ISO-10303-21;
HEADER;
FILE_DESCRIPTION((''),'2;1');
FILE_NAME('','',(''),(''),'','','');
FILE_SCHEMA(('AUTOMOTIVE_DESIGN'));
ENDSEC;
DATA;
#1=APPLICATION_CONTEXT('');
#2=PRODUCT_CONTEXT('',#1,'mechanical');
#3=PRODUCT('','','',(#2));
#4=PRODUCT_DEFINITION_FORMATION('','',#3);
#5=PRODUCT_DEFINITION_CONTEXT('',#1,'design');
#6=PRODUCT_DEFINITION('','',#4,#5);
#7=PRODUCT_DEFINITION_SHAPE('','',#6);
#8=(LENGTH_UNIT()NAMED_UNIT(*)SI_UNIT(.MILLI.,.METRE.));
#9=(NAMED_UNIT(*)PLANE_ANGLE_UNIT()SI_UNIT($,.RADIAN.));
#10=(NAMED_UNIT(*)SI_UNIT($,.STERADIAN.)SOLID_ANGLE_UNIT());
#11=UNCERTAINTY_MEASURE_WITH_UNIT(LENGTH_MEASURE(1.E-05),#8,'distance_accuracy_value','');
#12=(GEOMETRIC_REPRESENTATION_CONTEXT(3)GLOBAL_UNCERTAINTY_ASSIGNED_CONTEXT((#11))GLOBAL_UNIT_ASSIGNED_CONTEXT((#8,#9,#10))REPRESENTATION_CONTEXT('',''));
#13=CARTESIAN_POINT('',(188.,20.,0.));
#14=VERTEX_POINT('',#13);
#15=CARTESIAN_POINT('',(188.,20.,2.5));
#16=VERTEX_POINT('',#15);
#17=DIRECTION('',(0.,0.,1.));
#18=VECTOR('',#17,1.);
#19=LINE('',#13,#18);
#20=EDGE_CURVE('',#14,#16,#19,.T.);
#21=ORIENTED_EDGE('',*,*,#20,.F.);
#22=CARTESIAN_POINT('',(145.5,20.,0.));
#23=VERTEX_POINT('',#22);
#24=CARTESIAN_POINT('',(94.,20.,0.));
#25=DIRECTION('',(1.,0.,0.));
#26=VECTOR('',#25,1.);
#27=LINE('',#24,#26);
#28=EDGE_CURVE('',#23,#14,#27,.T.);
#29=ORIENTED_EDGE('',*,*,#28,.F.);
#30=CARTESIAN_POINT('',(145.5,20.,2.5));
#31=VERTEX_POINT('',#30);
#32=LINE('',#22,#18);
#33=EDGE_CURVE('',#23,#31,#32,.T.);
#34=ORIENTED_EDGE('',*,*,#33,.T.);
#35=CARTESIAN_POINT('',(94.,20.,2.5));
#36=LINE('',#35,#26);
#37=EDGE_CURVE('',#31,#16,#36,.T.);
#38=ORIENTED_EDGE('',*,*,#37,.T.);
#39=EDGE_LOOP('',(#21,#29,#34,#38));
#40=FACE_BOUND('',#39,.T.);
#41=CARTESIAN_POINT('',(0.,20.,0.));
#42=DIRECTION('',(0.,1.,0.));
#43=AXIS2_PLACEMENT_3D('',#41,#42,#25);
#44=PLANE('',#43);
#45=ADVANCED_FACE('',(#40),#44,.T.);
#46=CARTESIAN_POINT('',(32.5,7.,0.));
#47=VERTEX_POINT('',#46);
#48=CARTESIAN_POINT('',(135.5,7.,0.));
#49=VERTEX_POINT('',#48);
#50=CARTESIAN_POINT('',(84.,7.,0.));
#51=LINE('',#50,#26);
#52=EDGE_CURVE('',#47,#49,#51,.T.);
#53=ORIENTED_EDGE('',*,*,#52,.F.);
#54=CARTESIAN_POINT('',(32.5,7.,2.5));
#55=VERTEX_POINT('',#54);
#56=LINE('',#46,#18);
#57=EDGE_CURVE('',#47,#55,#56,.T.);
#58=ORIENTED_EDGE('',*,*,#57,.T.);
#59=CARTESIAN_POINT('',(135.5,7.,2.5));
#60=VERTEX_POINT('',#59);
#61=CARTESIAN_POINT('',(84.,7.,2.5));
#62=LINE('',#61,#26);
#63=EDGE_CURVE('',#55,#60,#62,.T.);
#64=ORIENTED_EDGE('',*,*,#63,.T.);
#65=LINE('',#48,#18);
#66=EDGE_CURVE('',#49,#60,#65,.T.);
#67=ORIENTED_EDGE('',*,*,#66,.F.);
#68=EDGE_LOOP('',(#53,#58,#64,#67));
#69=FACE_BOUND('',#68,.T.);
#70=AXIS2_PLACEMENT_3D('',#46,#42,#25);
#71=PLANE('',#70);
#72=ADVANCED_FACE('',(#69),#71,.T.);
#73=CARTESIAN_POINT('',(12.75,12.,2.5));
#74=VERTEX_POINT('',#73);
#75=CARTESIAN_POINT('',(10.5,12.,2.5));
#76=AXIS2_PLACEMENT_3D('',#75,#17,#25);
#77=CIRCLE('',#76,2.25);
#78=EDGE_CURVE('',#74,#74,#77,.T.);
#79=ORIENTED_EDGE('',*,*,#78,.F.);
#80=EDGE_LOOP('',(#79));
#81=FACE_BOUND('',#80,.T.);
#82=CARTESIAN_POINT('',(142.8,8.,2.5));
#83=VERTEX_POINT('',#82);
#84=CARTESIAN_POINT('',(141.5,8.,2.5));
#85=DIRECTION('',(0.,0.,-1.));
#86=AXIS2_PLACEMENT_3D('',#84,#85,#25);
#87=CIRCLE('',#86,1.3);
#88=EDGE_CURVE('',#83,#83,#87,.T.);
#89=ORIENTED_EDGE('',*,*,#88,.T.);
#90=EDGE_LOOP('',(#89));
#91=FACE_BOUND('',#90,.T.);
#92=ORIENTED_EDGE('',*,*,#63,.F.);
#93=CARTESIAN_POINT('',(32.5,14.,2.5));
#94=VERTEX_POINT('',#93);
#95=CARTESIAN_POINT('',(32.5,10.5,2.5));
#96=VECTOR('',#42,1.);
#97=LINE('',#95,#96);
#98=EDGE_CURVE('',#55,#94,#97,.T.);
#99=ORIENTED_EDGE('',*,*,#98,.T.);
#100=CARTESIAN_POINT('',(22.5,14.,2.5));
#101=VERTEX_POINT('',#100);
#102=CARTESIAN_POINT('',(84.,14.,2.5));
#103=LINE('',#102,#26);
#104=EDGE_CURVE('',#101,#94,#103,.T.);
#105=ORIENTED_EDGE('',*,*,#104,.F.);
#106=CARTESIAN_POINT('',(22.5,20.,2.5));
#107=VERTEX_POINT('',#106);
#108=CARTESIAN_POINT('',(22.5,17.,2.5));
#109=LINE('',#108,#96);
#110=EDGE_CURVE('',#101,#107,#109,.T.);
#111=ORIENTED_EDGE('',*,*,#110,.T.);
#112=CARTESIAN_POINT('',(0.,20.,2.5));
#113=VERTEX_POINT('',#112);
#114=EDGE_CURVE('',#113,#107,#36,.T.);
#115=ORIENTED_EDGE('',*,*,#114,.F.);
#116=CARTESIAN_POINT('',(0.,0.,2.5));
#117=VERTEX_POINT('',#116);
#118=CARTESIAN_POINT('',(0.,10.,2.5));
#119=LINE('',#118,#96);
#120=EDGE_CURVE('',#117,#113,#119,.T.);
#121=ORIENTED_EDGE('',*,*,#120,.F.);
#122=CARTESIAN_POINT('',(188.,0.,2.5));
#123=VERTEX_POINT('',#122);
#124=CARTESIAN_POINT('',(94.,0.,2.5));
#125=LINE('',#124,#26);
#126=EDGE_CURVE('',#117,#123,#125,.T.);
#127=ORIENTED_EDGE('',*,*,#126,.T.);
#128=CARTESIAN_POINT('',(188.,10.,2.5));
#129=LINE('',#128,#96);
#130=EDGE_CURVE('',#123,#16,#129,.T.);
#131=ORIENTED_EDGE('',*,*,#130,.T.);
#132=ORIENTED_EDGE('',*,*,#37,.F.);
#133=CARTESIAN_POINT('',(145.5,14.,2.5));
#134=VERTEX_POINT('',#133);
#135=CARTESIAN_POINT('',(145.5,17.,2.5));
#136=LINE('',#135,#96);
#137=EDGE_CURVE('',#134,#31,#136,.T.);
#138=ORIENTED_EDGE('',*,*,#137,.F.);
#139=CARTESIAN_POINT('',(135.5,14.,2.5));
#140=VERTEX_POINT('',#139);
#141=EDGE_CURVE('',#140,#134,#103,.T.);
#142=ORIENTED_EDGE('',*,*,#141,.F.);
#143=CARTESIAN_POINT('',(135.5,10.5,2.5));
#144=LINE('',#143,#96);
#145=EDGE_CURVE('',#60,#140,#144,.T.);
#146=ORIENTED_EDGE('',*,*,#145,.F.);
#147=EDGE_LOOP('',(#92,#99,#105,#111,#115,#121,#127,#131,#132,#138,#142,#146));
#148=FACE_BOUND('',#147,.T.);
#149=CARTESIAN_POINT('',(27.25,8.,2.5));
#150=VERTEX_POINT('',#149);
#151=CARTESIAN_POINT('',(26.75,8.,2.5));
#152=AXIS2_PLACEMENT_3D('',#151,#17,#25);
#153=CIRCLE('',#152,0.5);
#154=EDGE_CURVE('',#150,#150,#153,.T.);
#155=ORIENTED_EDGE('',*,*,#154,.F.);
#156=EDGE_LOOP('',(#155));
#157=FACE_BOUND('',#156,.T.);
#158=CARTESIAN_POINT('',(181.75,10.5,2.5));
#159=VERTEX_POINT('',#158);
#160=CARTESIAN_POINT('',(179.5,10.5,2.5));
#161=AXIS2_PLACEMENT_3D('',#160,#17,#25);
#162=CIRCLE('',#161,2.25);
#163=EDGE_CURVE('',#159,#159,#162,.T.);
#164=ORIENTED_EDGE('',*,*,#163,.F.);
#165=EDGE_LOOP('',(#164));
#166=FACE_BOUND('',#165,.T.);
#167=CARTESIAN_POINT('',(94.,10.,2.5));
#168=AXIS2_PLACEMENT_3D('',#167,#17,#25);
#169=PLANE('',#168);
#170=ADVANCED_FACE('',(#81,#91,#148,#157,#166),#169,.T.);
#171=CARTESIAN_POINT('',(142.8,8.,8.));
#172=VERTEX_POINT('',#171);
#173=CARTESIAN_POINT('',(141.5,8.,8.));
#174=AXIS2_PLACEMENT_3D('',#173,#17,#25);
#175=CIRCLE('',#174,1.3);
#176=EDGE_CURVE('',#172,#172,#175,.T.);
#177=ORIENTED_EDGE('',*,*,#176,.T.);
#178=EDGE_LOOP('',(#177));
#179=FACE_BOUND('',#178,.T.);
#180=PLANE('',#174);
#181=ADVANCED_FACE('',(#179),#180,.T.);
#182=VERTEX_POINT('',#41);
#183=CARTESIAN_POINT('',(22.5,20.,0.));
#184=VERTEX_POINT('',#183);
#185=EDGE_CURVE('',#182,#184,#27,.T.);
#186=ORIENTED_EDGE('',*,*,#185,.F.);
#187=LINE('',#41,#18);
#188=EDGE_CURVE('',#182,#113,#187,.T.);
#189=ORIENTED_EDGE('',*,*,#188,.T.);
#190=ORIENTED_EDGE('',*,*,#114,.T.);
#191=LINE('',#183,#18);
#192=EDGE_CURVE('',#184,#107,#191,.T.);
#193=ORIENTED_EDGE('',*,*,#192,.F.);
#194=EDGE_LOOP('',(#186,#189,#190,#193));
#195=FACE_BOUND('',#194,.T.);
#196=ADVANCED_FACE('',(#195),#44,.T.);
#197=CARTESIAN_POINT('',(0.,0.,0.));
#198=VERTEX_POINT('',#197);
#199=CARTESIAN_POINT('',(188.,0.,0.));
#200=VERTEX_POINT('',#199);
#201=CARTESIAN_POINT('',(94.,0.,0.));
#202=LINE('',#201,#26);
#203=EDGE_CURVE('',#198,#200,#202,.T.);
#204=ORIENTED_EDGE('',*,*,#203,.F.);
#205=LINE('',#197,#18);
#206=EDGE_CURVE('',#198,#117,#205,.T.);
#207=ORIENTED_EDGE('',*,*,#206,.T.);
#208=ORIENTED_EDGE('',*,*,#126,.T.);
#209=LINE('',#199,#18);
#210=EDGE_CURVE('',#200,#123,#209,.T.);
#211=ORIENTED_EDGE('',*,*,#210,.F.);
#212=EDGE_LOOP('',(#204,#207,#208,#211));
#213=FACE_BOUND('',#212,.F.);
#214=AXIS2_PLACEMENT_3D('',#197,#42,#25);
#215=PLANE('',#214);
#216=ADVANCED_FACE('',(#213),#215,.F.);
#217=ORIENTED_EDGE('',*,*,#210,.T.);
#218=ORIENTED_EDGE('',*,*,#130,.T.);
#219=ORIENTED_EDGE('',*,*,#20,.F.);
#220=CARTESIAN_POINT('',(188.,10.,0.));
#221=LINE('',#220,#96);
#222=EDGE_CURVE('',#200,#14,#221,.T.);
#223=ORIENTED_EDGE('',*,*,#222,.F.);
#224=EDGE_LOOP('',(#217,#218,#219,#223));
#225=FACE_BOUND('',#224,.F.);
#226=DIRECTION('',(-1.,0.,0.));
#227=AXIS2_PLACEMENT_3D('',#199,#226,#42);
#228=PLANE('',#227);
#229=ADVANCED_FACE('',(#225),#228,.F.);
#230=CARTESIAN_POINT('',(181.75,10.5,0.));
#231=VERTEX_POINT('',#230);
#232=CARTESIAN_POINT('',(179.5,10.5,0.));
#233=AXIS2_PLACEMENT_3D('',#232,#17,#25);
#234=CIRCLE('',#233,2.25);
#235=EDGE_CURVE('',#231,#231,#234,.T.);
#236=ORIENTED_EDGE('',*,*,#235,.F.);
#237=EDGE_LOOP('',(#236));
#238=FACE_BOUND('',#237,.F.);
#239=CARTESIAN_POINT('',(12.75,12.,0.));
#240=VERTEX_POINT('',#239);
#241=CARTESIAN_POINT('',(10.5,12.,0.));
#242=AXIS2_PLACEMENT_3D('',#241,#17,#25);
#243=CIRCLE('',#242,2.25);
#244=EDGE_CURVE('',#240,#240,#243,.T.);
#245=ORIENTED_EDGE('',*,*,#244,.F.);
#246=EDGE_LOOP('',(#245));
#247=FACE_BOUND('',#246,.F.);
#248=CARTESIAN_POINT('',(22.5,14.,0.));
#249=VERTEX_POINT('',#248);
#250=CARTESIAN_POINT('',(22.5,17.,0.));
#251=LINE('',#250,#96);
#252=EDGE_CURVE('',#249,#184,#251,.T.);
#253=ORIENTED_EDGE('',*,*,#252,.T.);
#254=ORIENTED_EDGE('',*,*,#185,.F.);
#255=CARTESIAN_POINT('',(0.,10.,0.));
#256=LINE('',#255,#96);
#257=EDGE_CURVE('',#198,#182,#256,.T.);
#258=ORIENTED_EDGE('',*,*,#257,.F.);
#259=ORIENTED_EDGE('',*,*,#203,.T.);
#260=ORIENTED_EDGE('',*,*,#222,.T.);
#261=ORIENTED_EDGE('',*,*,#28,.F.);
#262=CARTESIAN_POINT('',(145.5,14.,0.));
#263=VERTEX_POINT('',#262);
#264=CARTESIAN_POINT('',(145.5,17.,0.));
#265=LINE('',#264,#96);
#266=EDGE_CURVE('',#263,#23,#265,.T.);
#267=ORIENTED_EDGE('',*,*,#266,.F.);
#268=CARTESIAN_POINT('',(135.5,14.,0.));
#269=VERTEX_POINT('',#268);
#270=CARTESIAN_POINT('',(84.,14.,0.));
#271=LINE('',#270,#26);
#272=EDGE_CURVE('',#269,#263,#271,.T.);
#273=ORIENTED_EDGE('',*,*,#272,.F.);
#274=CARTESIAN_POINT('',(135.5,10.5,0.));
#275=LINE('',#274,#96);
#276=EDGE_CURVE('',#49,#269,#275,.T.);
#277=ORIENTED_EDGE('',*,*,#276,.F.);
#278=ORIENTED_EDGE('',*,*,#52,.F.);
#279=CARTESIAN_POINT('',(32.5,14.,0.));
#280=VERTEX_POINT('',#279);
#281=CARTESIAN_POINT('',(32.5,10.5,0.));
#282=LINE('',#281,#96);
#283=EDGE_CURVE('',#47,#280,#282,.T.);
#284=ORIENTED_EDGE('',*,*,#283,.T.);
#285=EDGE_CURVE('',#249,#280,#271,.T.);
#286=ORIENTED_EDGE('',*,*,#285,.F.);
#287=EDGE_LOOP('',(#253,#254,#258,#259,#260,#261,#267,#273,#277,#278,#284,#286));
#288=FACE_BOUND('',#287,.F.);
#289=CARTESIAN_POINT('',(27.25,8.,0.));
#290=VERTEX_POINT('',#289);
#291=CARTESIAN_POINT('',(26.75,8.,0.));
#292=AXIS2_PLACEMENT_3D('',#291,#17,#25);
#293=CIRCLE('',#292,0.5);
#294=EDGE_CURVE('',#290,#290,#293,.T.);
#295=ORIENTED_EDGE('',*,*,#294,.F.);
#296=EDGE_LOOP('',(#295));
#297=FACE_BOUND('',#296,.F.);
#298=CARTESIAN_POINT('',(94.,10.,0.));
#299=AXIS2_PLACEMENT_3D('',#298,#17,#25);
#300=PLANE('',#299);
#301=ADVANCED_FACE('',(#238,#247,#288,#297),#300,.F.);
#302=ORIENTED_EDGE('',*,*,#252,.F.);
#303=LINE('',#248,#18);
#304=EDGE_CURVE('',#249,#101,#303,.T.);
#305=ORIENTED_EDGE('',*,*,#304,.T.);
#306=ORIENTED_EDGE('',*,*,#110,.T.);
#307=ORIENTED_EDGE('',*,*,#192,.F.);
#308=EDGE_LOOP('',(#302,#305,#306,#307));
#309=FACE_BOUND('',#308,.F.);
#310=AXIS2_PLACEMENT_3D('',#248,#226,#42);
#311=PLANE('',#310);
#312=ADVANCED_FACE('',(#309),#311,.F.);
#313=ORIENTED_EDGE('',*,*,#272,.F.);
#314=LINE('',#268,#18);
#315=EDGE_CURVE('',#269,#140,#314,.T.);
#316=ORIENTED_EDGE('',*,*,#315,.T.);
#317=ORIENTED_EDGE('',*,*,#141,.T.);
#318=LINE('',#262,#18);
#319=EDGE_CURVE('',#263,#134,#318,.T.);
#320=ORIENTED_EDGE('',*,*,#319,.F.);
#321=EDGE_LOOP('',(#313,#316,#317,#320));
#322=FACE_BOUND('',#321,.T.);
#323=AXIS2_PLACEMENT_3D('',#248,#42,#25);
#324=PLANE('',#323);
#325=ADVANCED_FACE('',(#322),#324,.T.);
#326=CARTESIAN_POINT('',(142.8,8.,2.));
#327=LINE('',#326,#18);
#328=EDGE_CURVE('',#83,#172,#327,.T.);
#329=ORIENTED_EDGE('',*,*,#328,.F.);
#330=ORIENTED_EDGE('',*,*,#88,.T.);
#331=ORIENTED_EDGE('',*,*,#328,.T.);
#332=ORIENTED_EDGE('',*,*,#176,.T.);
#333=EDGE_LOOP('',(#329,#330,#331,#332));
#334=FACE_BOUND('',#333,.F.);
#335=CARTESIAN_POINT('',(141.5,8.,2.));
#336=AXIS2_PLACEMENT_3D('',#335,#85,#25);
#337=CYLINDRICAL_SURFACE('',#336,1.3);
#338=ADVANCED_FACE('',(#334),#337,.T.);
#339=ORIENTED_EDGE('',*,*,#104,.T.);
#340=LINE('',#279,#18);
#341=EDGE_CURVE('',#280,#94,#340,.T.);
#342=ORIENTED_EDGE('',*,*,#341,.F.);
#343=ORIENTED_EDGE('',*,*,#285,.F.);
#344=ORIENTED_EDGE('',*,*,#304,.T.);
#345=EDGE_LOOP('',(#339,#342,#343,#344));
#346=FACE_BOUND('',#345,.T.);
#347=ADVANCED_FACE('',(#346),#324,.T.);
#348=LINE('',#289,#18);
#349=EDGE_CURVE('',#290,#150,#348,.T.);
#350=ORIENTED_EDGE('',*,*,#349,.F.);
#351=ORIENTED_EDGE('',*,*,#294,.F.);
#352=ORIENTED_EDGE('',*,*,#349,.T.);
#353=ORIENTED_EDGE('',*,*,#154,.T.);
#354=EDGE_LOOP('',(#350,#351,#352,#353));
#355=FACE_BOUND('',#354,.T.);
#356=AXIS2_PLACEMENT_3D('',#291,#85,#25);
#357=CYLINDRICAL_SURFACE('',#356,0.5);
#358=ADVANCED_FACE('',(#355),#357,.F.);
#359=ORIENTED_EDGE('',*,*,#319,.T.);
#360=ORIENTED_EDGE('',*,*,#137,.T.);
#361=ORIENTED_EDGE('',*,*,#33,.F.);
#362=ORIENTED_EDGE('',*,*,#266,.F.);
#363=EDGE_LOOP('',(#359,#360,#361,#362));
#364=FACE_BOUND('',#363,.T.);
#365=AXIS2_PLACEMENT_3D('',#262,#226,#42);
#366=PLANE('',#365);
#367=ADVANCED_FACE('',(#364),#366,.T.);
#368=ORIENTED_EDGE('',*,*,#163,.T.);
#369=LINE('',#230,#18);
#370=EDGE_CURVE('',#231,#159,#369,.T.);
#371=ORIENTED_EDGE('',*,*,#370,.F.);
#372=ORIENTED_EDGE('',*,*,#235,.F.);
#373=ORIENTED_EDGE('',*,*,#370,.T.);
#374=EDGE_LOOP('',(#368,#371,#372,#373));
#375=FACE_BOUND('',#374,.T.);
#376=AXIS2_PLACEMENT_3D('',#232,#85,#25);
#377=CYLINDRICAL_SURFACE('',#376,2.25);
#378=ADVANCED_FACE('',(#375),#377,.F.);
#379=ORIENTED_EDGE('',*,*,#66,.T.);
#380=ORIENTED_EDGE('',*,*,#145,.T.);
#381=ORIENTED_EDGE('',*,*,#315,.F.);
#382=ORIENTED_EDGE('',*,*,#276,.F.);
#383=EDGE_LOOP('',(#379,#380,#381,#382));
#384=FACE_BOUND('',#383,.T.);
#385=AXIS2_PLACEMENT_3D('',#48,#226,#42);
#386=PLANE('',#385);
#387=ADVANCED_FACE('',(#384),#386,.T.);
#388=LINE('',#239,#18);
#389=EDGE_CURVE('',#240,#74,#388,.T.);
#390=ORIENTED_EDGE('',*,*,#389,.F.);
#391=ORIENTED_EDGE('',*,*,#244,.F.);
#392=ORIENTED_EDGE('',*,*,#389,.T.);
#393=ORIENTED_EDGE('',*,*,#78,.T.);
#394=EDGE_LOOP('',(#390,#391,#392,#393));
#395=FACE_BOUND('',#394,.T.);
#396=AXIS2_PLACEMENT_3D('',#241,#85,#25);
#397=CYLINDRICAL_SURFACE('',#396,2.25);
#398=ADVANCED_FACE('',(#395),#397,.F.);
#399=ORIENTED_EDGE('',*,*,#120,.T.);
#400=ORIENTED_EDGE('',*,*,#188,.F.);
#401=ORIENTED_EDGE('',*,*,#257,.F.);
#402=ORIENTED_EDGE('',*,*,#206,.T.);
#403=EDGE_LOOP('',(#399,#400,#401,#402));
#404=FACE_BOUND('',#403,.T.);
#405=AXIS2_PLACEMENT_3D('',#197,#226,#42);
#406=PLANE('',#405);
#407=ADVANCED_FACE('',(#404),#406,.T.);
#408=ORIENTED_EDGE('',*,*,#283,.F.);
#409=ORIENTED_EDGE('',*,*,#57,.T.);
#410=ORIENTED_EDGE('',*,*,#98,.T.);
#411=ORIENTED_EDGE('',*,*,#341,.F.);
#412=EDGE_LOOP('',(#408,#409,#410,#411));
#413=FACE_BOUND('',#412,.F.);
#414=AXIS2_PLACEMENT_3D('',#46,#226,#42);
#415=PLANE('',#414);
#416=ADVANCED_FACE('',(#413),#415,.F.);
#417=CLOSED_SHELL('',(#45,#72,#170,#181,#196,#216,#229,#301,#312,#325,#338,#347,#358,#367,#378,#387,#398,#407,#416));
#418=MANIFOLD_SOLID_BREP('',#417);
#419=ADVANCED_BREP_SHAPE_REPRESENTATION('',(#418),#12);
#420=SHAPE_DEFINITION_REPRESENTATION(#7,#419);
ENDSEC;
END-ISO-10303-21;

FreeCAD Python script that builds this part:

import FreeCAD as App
import Part
import Sketcher
from FreeCAD import Vector
Q = App.Units.Quantity


def add_polygon(sketch, points):
    """Adds a closed chain of lines whose ends are joined by coincident constraints."""
    first, n = sketch.GeometryCount, len(points)
    for a, b in zip(points, points[1:] + points[:1]):
        sketch.addGeometry(Part.LineSegment(App.Vector(*a, 0), App.Vector(*b, 0)), False)
    for i in range(n):
        sketch.addConstraint(Sketcher.Constraint("Coincident", first + i, 2, first + (i + 1) % n, 1))

doc = App.newDocument("Part")
params = doc.addObject("Spreadsheet::Sheet", "Params")
for row, (alias, value) in enumerate([
    ("sketch1_width", "188 mm"),
    ("sketch1_height", "20 mm"),
    ("pad1_length", "2.5 mm"),
    ("sketch2_diameter", "4.5 mm"),
    ("pocket1_length", "2.5 mm"),
    ("sketch3_diameter", "4.5 mm"),
    ("pocket2_length", "2.5 mm"),
    ("sketch4_width", "123 mm"),
    ("sketch4_height", "6 mm"),
    ("pocket3_length", "2.5 mm"),
    ("sketch5_width", "103 mm"),
    ("sketch5_height", "7 mm"),
    ("pocket4_length", "2.5 mm"),
    ("sketch6_diameter", "2.6 mm"),
    ("pad2_length", "6 mm"),
    ("sketch7_diameter", "1 mm"),
    ("pocket5_length", "2.5 mm"),
], start=1):
    params.set(f"A{row}", alias)
    params.set(f"B{row}", "=" + value)
    params.setAlias(f"B{row}", alias)

body = doc.addObject("PartDesign::Body", "Body")

sketch1 = body.newObject("Sketcher::SketchObject", "Sketch")
sketch1.AttachmentSupport = (doc.getObject("XY_Plane"), [""])
sketch1.MapMode = "FlatFace"
add_polygon(sketch1, [(0, 20), (0, 0), (188, 0), (188, 20)])
sketch1.addConstraint([
    Sketcher.Constraint("Vertical", 0),
    Sketcher.Constraint("Horizontal", 1),
    Sketcher.Constraint("Vertical", 2),
    Sketcher.Constraint("Horizontal", 3),
    Sketcher.Constraint("Coincident", 0, 2, -1, 1),
    Sketcher.Constraint("DistanceX", 1, 1, 1, 2, Q("188 mm")),
    Sketcher.Constraint("DistanceY", 0, 2, 0, 1, Q("20 mm")),
])
sketch1.setExpression("Constraints[9]", "Params.sketch1_width")
sketch1.setExpression("Constraints[10]", "Params.sketch1_height")
pad1 = body.newObject("PartDesign::Pad", "Pad")
pad1.Profile = sketch1
pad1.setExpression("Length", "Params.pad1_length")

sketch2 = body.newObject("Sketcher::SketchObject", "Sketch001")
sketch2.AttachmentSupport = (doc.getObject("XY_Plane"), [""])
sketch2.MapMode = "FlatFace"
sketch2.addGeometry(Part.Circle(Vector(10.5, 12, 0), Vector(0, 0, 1), 2.2), False)
sketch2.addConstraint([
    Sketcher.Constraint("Diameter", 0, Q("4.5 mm")),
    Sketcher.Constraint("DistanceY", -1, 1, 0, 3, Q("12 mm")),
    Sketcher.Constraint("DistanceX", -1, 1, 0, 3, Q("10.5 mm")),
])
sketch2.setExpression("Constraints[0]", "Params.sketch2_diameter")
pocket1 = body.newObject("PartDesign::Pocket", "Pocket")
pocket1.Profile = sketch2
pocket1.setExpression("Length", "Params.pocket1_length")
pocket1.Reversed = True

sketch3 = body.newObject("Sketcher::SketchObject", "Sketch002")
sketch3.AttachmentSupport = (doc.getObject("XY_Plane"), [""])
sketch3.MapMode = "FlatFace"
sketch3.addGeometry(Part.Circle(Vector(179.5, 10.5, 0), Vector(0, 0, 1), 2.2), False)
sketch3.addConstraint([
    Sketcher.Constraint("Diameter", 0, Q("4.5 mm")),
    Sketcher.Constraint("DistanceX", -1, 1, 0, 3, Q("179.5 mm")),
    Sketcher.Constraint("DistanceY", -1, 1, 0, 3, Q("10.5 mm")),
])
sketch3.setExpression("Constraints[0]", "Params.sketch3_diameter")
pocket2 = body.newObject("PartDesign::Pocket", "Pocket001")
pocket2.Profile = sketch3
pocket2.setExpression("Length", "Params.pocket2_length")
pocket2.Reversed = True

sketch4 = body.newObject("Sketcher::SketchObject", "Sketch003")
sketch4.AttachmentSupport = (doc.getObject("XY_Plane"), [""])
sketch4.MapMode = "FlatFace"
add_polygon(sketch4, [(22, 20), (22, 14), (146, 14), (146, 20)])
sketch4.addConstraint([
    Sketcher.Constraint("Vertical", 0),
    Sketcher.Constraint("Horizontal", 1),
    Sketcher.Constraint("Vertical", 2),
    Sketcher.Constraint("Horizontal", 3),
    Sketcher.Constraint("DistanceX", 1, 1, 1, 2, Q("123 mm")),
    Sketcher.Constraint("DistanceY", 0, 2, 0, 1, Q("6 mm")),
    Sketcher.Constraint("DistanceY", -1, 1, 0, 2, Q("14 mm")),
    Sketcher.Constraint("DistanceX", -1, 1, 0, 2, Q("22.5 mm")),
])
sketch4.setExpression("Constraints[8]", "Params.sketch4_width")
sketch4.setExpression("Constraints[9]", "Params.sketch4_height")
pocket3 = body.newObject("PartDesign::Pocket", "Pocket002")
pocket3.Profile = sketch4
pocket3.setExpression("Length", "Params.pocket3_length")
pocket3.Reversed = True

sketch5 = body.newObject("Sketcher::SketchObject", "Sketch004")
sketch5.AttachmentSupport = (doc.getObject("XY_Plane"), [""])
sketch5.MapMode = "FlatFace"
add_polygon(sketch5, [(32, 14), (32, 7), (136, 7), (136, 14)])
sketch5.addConstraint([
    Sketcher.Constraint("Vertical", 0),
    Sketcher.Constraint("Horizontal", 1),
    Sketcher.Constraint("Vertical", 2),
    Sketcher.Constraint("Horizontal", 3),
    Sketcher.Constraint("DistanceX", 1, 1, 1, 2, Q("103 mm")),
    Sketcher.Constraint("DistanceY", 0, 2, 0, 1, Q("7 mm")),
    Sketcher.Constraint("DistanceY", -1, 1, 0, 2, Q("7 mm")),
    Sketcher.Constraint("DistanceX", -1, 1, 0, 2, Q("32.5 mm")),
])
sketch5.setExpression("Constraints[8]", "Params.sketch5_width")
sketch5.setExpression("Constraints[9]", "Params.sketch5_height")
pocket4 = body.newObject("PartDesign::Pocket", "Pocket003")
pocket4.Profile = sketch5
pocket4.setExpression("Length", "Params.pocket4_length")
pocket4.Reversed = True

sketch6 = body.newObject("Sketcher::SketchObject", "Sketch005")
sketch6.AttachmentSupport = (doc.getObject("XY_Plane"), [""])
sketch6.MapMode = "FlatFace"
sketch6.AttachmentOffset = App.Placement(Vector(0, 0, 2), App.Rotation())
sketch6.addGeometry(Part.Circle(Vector(141.5, 8, 0), Vector(0, 0, 1), 1.3), False)
sketch6.addConstraint([
    Sketcher.Constraint("Diameter", 0, Q("2.6 mm")),
    Sketcher.Constraint("DistanceY", -1, 1, 0, 3, Q("8 mm")),
    Sketcher.Constraint("DistanceX", -1, 1, 0, 3, Q("141.5 mm")),
])
sketch6.setExpression("Constraints[0]", "Params.sketch6_diameter")
pad2 = body.newObject("PartDesign::Pad", "Pad001")
pad2.Profile = sketch6
pad2.setExpression("Length", "Params.pad2_length")

sketch7 = body.newObject("Sketcher::SketchObject", "Sketch006")
sketch7.AttachmentSupport = (doc.getObject("XY_Plane"), [""])
sketch7.MapMode = "FlatFace"
sketch7.addGeometry(Part.Circle(Vector(26.8, 8, 0), Vector(0, 0, 1), 0.5), False)
sketch7.addConstraint([
    Sketcher.Constraint("Diameter", 0, Q("1 mm")),
    Sketcher.Constraint("DistanceY", -1, 1, 0, 3, Q("8 mm")),
    Sketcher.Constraint("DistanceX", -1, 1, 0, 3, Q("26.75 mm")),
])
sketch7.setExpression("Constraints[0]", "Params.sketch7_diameter")
pocket5 = body.newObject("PartDesign::Pocket", "Pocket004")
pocket5.Profile = sketch7
pocket5.setExpression("Length", "Params.pocket5_length")
pocket5.Reversed = True

doc.recompute()
